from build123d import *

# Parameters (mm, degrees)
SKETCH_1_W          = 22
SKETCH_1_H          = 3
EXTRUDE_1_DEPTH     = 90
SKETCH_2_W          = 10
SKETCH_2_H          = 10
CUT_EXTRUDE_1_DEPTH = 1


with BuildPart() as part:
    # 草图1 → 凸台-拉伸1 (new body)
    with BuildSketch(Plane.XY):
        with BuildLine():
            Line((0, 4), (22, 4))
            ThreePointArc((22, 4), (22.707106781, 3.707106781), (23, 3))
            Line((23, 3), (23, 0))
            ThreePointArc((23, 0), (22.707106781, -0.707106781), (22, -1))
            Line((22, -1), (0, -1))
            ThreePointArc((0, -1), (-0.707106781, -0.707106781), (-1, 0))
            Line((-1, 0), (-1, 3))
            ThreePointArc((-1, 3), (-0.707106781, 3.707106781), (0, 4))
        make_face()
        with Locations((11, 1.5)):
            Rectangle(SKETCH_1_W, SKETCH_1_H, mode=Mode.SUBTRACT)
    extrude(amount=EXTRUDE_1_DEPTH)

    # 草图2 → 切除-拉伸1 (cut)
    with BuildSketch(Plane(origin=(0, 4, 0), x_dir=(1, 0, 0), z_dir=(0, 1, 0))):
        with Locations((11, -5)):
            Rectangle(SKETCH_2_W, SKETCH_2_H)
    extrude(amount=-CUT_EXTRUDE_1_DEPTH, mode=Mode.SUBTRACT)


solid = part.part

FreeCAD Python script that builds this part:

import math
import FreeCAD as App
import Part
import Sketcher
Q = App.Units.Quantity


def add_polygon(sketch, points):
    """Adds a closed chain of lines whose ends are joined by coincident constraints."""
    first, n = sketch.GeometryCount, len(points)
    for a, b in zip(points, points[1:] + points[:1]):
        sketch.addGeometry(Part.LineSegment(App.Vector(*a, 0), App.Vector(*b, 0)), False)
    for i in range(n):
        sketch.addConstraint(Sketcher.Constraint("Coincident", first + i, 2, first + (i + 1) % n, 1))

doc = App.newDocument("Part")
body = doc.addObject("PartDesign::Body", "Body")

sketch1 = doc.addObject("Sketcher::SketchObject", "Sketch")
body.addObject(sketch1)
sketch1.AttachmentSupport = (doc.XY_Plane, [""])
sketch1.MapMode = "FlatFace"
sketch1.addGeometry(Part.LineSegment(App.Vector(22, 4, 0), App.Vector(0, 4, 0)), False)
sketch1.addGeometry(Part.ArcOfCircle(Part.Circle(App.Vector(0, 3, 0), App.Vector(0, 0, 1), 1), math.radians(90), math.radians(180)), False)
sketch1.addGeometry(Part.LineSegment(App.Vector(-1, 3, 0), App.Vector(-1, 0, 0)), False)
sketch1.addGeometry(Part.ArcOfCircle(Part.Circle(App.Vector(0, 0, 0), App.Vector(0, 0, 1), 1), math.radians(-180), math.radians(-90)), False)
sketch1.addGeometry(Part.LineSegment(App.Vector(0, -1, 0), App.Vector(22, -1, 0)), False)
sketch1.addGeometry(Part.ArcOfCircle(Part.Circle(App.Vector(22, 0, 0), App.Vector(0, 0, 1), 1), math.radians(-90), math.radians(0)), False)
sketch1.addGeometry(Part.LineSegment(App.Vector(23, 0, 0), App.Vector(23, 3, 0)), False)
sketch1.addGeometry(Part.ArcOfCircle(Part.Circle(App.Vector(22, 3, 0), App.Vector(0, 0, 1), 1), math.radians(0), math.radians(90)), False)
add_polygon(sketch1, [(0, 0), (0, 3), (22, 3), (22, 0)])
sketch1.addConstraint(Sketcher.Constraint("Tangent", 0, 2, 1, 1))
sketch1.addConstraint(Sketcher.Constraint("Tangent", 1, 2, 2, 1))
sketch1.addConstraint(Sketcher.Constraint("Tangent", 2, 2, 3, 1))
sketch1.addConstraint(Sketcher.Constraint("Tangent", 3, 2, 4, 1))
sketch1.addConstraint(Sketcher.Constraint("Tangent", 4, 2, 5, 1))
sketch1.addConstraint(Sketcher.Constraint("Tangent", 5, 2, 6, 1))
sketch1.addConstraint(Sketcher.Constraint("Tangent", 6, 2, 7, 1))
sketch1.addConstraint(Sketcher.Constraint("Tangent", 7, 2, 0, 1))
sketch1.addConstraint(Sketcher.Constraint("Horizontal", 0))
sketch1.addConstraint(Sketcher.Constraint("Vertical", 2))
sketch1.addConstraint(Sketcher.Constraint("Horizontal", 4))
sketch1.addConstraint(Sketcher.Constraint("Vertical", 6))
sketch1.addConstraint(Sketcher.Constraint("Vertical", 8))
sketch1.addConstraint(Sketcher.Constraint("Horizontal", 9))
sketch1.addConstraint(Sketcher.Constraint("Vertical", 10))
sketch1.addConstraint(Sketcher.Constraint("Horizontal", 11))
sketch1.addConstraint(Sketcher.Constraint("Coincident", 3, 3, -1, 1))
sketch1.addConstraint(Sketcher.Constraint("Coincident", 11, 2, -1, 1))
sketch1.addConstraint(Sketcher.Constraint("Coincident", 8, 2, 1, 3))
sketch1.addConstraint(Sketcher.Constraint("Coincident", 9, 2, 7, 3))
sketch1.addConstraint(Sketcher.Constraint("Equal", 3, 5))
sketch1.addConstraint(Sketcher.Constraint("Radius", 1, Q("1 mm")))
sketch1.addConstraint(Sketcher.Constraint("DistanceX", 0, 2, 0, 1, Q("22 mm")))
sketch1.addConstraint(Sketcher.Constraint("DistanceY", 2, 2, 2, 1, Q("3 mm")))
pad1 = doc.addObject("PartDesign::Pad", "Pad")
body.addObject(pad1)
pad1.Profile = sketch1
pad1.Length = 90

sketch2 = doc.addObject("Sketcher::SketchObject", "Sketch001")
body.addObject(sketch2)
sketch2.AttachmentSupport = (doc.XZ_Plane, [""])
sketch2.MapMode = "FlatFace"
sketch2.AttachmentOffset = App.Placement(App.Vector(0, 0, -4), App.Rotation())
add_polygon(sketch2, [(6, 0), (6, 10), (16, 10), (16, 0)])
sketch2.addConstraint(Sketcher.Constraint("Vertical", 0))
sketch2.addConstraint(Sketcher.Constraint("Horizontal", 1))
sketch2.addConstraint(Sketcher.Constraint("Vertical", 2))
sketch2.addConstraint(Sketcher.Constraint("Horizontal", 3))
sketch2.addConstraint(Sketcher.Constraint("PointOnObject", 2, 2, -1))
sketch2.addConstraint(Sketcher.Constraint("Equal", 3, 0))
sketch2.addConstraint(Sketcher.Constraint("DistanceX", 1, 1, 1, 2, Q("10 mm")))
sketch2.addConstraint(Sketcher.Constraint("DistanceX", -1, 1, 0, 2, Q("6 mm")))
pocket1 = doc.addObject("PartDesign::Pocket", "Pocket")
body.addObject(pocket1)
pocket1.Profile = sketch2
pocket1.Length = 1
pocket1.Reversed = True

doc.recompute()
